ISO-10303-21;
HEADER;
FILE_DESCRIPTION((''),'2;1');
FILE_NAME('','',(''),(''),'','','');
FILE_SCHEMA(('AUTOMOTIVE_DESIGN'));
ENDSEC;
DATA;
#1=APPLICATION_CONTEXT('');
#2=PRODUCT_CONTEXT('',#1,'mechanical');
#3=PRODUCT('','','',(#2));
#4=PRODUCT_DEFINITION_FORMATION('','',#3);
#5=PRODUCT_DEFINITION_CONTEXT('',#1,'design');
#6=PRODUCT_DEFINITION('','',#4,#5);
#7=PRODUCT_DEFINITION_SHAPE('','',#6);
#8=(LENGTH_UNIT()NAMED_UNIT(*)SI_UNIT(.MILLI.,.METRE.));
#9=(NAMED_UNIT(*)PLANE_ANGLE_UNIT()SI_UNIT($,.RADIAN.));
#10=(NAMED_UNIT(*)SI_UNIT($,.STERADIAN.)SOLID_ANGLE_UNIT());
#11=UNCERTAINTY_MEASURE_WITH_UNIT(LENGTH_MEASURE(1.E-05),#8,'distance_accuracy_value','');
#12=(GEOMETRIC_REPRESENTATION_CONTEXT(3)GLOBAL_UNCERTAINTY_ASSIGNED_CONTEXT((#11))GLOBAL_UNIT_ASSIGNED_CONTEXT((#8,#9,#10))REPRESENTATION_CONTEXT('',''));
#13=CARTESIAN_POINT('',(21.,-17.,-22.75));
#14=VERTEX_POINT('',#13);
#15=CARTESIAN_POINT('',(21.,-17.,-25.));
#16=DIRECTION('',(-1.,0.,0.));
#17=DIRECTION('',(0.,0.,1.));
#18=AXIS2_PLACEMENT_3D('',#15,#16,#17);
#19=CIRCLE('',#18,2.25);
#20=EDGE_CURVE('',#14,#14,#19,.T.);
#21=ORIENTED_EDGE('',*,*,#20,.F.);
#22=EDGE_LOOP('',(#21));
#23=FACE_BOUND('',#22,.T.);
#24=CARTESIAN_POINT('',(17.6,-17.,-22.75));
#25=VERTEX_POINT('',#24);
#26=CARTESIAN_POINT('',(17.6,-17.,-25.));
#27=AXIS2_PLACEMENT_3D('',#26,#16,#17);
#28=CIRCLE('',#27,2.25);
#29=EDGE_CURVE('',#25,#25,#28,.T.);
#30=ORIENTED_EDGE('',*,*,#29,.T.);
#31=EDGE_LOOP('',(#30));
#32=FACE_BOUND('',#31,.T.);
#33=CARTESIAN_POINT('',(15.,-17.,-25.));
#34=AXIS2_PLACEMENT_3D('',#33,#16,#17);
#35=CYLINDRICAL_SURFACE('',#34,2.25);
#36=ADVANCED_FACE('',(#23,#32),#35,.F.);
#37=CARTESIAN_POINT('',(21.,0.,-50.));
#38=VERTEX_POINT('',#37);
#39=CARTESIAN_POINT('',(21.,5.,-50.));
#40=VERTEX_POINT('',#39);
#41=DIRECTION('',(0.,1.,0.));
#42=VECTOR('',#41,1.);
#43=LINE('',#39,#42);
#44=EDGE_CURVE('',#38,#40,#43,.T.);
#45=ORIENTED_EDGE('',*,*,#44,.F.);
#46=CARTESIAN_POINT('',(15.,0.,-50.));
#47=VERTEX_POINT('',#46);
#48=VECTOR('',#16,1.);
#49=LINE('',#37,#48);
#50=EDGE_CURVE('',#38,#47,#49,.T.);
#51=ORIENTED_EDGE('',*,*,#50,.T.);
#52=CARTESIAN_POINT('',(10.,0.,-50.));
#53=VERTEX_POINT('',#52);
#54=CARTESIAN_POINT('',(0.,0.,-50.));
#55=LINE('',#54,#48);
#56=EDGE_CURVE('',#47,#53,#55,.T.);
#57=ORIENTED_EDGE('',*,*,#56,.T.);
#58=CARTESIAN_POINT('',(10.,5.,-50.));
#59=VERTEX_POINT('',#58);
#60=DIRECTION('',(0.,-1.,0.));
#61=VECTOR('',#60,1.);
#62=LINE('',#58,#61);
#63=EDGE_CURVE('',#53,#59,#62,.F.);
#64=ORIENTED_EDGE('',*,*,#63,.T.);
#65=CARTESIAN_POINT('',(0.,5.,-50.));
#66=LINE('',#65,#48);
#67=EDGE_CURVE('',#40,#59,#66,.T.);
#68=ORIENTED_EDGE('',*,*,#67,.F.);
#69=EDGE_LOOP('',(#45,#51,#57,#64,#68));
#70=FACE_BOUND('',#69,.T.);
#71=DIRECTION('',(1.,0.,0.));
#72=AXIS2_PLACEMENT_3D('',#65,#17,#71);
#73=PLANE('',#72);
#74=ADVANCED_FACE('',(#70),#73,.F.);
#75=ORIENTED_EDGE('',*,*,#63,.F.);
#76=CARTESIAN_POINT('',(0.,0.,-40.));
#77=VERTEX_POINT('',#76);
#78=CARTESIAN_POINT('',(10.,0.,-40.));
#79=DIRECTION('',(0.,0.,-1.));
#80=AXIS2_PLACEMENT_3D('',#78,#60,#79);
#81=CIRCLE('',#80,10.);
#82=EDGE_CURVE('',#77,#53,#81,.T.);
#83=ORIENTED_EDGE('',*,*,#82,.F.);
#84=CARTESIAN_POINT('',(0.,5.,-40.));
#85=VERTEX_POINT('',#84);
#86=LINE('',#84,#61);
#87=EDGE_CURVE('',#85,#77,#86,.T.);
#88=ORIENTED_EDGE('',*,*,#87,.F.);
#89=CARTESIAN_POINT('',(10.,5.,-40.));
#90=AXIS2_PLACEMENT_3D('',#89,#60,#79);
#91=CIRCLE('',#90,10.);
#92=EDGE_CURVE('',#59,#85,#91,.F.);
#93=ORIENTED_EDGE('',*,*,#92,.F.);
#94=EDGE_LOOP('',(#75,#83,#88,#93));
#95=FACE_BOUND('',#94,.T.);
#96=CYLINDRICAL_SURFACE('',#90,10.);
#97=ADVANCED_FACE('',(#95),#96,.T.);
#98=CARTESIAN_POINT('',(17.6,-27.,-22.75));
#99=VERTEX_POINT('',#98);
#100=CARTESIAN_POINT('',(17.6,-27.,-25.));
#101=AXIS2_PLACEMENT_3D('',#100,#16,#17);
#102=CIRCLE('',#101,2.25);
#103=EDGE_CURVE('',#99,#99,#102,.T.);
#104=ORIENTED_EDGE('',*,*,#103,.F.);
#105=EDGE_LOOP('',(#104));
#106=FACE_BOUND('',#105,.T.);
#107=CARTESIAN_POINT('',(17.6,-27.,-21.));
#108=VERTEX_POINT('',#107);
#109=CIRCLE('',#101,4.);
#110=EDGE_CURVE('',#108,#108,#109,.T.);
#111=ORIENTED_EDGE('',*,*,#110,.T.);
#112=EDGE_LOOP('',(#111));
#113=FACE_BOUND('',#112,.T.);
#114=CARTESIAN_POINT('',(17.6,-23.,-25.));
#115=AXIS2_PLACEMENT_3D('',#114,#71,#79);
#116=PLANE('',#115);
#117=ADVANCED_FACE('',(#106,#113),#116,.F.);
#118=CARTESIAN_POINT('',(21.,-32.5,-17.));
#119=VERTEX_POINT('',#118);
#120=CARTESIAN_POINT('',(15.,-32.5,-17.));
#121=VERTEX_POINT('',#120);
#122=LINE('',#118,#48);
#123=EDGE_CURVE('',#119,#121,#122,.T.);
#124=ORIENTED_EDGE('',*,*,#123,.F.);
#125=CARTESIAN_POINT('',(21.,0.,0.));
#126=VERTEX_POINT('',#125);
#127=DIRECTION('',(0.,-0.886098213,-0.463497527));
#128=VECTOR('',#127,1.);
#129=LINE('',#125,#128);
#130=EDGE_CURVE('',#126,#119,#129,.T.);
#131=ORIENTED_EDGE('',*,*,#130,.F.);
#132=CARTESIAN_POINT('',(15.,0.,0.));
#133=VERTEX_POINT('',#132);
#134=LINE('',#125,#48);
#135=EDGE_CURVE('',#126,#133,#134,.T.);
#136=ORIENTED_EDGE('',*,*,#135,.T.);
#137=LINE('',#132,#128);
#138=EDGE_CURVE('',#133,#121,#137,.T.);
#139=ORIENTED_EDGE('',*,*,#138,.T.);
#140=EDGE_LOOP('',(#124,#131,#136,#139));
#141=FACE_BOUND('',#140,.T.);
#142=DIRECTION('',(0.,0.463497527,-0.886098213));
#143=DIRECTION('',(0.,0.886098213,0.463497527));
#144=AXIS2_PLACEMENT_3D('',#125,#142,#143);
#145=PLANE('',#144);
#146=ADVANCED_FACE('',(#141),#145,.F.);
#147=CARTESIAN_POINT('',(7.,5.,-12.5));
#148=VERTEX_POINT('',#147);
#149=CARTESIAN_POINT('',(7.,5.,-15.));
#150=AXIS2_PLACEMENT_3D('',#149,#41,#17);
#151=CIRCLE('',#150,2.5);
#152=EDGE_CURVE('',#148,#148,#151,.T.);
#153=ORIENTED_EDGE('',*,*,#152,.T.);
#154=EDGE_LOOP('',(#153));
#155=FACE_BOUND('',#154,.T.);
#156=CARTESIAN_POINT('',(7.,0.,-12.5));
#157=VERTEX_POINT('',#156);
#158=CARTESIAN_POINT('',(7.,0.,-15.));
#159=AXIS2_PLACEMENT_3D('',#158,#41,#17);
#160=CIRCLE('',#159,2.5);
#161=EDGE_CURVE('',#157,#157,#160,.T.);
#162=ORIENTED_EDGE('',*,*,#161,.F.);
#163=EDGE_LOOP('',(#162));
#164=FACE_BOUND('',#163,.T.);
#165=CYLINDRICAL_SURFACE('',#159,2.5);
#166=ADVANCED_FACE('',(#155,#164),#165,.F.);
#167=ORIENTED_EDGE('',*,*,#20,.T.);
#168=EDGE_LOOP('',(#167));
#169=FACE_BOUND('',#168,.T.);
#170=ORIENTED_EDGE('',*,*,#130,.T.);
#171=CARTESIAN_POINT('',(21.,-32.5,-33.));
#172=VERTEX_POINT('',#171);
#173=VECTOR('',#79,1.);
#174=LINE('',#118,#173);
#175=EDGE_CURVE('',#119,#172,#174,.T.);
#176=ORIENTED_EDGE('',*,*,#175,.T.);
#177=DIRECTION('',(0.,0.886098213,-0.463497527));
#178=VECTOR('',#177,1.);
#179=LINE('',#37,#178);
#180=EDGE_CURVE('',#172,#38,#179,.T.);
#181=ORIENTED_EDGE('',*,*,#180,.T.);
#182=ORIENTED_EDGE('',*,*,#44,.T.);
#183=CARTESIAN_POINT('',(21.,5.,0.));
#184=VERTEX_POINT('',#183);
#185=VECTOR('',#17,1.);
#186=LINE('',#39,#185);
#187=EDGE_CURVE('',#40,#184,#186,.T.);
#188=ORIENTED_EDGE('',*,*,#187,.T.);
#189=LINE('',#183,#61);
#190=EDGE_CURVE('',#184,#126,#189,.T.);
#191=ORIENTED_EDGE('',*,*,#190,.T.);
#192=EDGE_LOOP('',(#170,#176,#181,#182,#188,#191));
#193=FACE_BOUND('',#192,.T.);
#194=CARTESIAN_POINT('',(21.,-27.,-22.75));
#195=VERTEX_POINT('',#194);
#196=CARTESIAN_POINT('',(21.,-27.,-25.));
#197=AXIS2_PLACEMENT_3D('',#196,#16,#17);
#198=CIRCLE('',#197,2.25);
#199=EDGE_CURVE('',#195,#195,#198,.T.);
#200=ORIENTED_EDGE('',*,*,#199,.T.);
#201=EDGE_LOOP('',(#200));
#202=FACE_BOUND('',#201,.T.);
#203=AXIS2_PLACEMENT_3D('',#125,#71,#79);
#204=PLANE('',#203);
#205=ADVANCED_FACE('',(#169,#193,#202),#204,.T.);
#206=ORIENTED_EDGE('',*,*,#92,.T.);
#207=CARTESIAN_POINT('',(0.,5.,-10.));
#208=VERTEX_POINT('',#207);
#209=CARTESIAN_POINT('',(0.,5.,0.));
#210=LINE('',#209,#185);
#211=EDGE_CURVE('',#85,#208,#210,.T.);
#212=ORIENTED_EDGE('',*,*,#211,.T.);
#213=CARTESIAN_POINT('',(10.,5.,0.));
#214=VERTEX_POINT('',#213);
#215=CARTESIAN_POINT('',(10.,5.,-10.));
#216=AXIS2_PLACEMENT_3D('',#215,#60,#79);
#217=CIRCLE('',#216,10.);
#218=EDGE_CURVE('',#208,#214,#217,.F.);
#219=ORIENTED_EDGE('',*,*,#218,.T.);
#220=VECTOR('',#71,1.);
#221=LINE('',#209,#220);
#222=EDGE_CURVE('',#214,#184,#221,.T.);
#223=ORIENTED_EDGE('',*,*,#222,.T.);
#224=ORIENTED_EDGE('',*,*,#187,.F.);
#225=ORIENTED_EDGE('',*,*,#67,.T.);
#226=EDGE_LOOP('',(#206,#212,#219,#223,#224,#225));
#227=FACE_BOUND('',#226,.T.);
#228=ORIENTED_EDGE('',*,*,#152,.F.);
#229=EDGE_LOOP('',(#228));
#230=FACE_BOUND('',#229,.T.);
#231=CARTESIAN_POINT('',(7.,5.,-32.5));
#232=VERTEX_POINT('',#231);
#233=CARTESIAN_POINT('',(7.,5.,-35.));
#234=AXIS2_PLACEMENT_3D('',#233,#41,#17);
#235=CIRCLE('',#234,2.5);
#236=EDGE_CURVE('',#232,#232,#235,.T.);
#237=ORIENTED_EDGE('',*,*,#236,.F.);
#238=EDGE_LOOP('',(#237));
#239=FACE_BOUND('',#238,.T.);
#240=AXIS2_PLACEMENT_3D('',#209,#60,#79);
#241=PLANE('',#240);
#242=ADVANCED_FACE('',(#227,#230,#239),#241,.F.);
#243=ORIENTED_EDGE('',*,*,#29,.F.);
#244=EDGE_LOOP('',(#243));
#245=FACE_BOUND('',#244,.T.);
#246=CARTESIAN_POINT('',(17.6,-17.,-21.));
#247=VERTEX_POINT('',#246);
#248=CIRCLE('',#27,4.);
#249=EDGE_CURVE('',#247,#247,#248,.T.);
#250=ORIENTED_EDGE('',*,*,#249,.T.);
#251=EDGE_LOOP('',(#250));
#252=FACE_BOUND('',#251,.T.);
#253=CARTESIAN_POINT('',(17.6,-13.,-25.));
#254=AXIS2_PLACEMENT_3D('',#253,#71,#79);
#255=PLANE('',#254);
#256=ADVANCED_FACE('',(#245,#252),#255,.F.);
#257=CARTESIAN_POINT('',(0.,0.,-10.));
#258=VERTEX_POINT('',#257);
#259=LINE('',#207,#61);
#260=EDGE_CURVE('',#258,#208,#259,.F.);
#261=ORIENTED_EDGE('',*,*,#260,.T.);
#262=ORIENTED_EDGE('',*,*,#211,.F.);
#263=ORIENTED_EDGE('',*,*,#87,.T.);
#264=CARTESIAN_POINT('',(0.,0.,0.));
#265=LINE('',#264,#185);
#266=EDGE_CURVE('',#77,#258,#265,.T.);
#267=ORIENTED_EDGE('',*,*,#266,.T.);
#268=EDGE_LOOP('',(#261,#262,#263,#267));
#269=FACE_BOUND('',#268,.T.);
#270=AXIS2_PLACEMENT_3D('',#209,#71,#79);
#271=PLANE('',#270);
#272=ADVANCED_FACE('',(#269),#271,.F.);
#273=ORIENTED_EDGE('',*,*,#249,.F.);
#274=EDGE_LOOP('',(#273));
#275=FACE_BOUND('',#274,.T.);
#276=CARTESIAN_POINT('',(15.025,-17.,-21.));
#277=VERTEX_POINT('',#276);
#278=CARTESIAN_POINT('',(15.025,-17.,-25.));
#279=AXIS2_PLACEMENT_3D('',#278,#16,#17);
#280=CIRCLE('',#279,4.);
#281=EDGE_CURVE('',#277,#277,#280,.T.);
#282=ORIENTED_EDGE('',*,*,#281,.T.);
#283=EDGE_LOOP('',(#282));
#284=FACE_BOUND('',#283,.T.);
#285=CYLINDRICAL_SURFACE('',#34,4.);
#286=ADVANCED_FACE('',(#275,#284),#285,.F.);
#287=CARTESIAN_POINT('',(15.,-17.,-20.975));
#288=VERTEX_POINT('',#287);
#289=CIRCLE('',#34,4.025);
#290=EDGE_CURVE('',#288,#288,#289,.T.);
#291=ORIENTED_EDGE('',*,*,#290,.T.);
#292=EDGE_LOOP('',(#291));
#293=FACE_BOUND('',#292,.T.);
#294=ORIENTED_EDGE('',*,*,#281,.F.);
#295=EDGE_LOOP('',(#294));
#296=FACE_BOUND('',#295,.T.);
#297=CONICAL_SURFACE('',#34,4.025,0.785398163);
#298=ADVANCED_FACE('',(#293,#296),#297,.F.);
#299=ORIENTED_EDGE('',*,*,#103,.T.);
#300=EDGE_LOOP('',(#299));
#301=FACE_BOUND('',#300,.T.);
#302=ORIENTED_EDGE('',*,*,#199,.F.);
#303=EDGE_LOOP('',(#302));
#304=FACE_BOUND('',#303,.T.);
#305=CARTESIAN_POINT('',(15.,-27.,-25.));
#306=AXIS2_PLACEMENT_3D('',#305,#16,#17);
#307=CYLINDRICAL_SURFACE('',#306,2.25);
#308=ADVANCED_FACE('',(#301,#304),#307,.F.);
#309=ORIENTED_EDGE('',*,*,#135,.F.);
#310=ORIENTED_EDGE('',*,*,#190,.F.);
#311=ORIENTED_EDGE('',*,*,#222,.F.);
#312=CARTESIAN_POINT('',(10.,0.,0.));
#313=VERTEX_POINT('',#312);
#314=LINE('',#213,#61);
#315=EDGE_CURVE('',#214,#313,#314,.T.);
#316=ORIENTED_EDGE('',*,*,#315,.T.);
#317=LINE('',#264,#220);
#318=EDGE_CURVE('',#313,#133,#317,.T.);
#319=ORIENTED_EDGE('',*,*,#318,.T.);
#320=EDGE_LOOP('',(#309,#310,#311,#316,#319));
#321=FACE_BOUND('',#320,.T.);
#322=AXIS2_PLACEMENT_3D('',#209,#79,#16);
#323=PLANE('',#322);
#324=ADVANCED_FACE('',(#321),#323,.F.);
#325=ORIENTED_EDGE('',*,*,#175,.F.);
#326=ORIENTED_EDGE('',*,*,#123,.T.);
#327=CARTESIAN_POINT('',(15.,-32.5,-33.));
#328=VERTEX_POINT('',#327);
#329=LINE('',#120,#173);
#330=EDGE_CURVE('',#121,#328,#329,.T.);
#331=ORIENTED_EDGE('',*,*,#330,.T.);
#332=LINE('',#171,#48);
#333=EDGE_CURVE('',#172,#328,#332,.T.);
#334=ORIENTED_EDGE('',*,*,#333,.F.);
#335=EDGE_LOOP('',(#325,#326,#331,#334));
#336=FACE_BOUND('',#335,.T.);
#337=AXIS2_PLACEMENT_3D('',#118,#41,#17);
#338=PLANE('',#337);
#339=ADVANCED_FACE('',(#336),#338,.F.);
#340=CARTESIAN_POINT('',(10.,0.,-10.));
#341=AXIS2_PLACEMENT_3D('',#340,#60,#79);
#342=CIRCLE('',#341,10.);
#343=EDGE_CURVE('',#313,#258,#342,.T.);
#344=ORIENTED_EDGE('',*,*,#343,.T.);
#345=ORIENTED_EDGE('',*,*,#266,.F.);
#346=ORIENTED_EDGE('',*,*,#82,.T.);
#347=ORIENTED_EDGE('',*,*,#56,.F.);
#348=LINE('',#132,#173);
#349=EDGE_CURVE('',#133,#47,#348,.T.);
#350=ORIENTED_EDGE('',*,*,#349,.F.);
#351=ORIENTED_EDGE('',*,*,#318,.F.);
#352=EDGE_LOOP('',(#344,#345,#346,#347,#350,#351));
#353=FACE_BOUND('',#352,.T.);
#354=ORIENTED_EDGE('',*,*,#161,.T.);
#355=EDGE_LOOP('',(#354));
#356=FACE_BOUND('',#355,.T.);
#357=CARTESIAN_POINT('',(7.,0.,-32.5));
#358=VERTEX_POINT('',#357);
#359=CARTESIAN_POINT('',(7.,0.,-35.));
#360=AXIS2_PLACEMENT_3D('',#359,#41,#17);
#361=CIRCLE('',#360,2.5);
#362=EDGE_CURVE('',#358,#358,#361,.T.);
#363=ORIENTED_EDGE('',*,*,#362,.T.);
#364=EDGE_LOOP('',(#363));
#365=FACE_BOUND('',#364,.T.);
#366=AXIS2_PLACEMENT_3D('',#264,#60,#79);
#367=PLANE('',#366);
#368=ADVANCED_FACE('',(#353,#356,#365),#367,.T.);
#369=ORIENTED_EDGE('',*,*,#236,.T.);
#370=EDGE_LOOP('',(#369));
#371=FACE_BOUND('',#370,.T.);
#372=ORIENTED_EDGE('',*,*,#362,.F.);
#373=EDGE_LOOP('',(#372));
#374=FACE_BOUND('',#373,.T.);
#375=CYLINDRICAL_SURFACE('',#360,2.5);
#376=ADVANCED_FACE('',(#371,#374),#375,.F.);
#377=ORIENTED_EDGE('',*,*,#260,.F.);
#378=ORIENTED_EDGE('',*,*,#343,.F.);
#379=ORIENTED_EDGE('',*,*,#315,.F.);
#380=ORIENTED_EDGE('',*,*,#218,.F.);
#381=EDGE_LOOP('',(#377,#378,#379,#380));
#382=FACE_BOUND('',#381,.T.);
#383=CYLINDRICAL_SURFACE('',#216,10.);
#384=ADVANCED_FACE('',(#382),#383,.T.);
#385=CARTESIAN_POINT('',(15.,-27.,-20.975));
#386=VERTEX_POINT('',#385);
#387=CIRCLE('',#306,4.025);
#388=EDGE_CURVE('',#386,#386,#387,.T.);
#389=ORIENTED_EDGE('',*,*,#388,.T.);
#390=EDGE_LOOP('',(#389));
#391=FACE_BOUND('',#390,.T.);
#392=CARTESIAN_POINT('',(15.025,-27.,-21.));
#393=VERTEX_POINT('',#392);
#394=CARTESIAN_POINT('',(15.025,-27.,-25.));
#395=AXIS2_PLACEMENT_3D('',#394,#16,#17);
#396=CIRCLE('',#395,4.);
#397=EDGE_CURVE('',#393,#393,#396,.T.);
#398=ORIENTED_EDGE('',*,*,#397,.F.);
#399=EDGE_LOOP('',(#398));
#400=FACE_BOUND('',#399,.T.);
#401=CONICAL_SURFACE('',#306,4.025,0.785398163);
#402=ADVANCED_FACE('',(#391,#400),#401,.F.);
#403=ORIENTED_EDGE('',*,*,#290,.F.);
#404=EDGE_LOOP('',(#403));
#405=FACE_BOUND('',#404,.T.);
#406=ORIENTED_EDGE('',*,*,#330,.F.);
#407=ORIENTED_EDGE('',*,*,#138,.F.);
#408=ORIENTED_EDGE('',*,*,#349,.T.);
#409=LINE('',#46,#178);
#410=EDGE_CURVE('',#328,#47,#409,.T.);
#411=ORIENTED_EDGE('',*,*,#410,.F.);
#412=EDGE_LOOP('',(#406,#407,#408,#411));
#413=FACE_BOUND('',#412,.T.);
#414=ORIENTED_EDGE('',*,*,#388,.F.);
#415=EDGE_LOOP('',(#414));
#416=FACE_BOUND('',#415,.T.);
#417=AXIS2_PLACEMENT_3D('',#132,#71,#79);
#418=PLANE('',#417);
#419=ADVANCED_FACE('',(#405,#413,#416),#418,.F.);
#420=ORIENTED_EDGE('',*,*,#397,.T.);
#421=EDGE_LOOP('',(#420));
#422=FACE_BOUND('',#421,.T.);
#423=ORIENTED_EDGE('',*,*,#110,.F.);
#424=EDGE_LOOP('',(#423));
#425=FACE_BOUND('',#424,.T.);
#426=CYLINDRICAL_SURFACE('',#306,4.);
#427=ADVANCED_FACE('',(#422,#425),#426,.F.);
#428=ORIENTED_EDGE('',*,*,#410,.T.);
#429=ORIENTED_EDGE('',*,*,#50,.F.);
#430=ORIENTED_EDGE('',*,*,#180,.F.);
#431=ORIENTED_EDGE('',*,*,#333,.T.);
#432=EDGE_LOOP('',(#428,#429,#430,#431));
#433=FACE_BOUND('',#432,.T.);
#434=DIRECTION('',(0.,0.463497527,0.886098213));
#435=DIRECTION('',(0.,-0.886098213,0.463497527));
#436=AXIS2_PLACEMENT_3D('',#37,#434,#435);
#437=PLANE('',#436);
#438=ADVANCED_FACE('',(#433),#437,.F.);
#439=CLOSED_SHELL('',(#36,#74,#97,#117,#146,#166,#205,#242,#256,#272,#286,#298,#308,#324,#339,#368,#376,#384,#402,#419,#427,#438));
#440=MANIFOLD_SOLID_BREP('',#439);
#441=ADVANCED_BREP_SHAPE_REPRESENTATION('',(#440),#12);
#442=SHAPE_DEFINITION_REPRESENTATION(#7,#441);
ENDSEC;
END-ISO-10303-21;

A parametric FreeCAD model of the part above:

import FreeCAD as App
import Part
import Sketcher

V = App.Vector
Q = App.Units.Quantity


def edges_at(feature, points):
    """Names of the edges that pass closest to the given points."""
    edges = feature.Shape.Edges
    near = lambda p: min(range(len(edges)), key=lambda i: edges[i].distToShape(Part.Vertex(*p))[0])
    return sorted({f"Edge{near(p) + 1}" for p in points})

doc = App.newDocument("Part")
body = doc.addObject("PartDesign::Body", "Body")

# Sketch on XZ plane
sketch1 = body.newObject("Sketcher::SketchObject", "Sketch")
sketch1.AttachmentSupport = (doc.getObject("XZ_Plane"), [""])
sketch1.MapMode = "FlatFace"
sketch1.addGeometry([
    Part.LineSegment(V(0, -50, 0), V(0, 0, 0)),
    Part.LineSegment(V(0, 0, 0), V(15, 0, 0)),
    Part.LineSegment(V(15, 0, 0), V(15, -50, 0)),
    Part.LineSegment(V(15, -50, 0), V(0, -50, 0)),
], False)
sketch1.addConstraint([
    Sketcher.Constraint("Coincident", 0, 2, 1, 1),
    Sketcher.Constraint("Coincident", 1, 2, 2, 1),
    Sketcher.Constraint("Coincident", 2, 2, 3, 1),
    Sketcher.Constraint("Coincident", 3, 2, 0, 1),
    Sketcher.Constraint("Vertical", 0),
    Sketcher.Constraint("Horizontal", 1),
    Sketcher.Constraint("Vertical", 2),
    Sketcher.Constraint("Horizontal", 3),
    Sketcher.Constraint("Coincident", 0, 2, -1, 1),
    Sketcher.Constraint("DistanceX", 1, 1, 1, 2, 15.0),
    Sketcher.Constraint("DistanceY", 0, 1, 0, 2, 50.0),
])
pad1 = body.newObject("PartDesign::Pad", "Pad")
pad1.Profile = sketch1
pad1.Length = 5
pad1.Reversed = True

# Sketch on XZ plane
sketch2 = body.newObject("Sketcher::SketchObject", "Sketch001")
sketch2.AttachmentSupport = (doc.getObject("XZ_Plane"), [""])
sketch2.MapMode = "FlatFace"
sketch2.AttachmentOffset = App.Placement(V(0, 0, -5), App.Rotation())
sketch2.addGeometry([
    Part.Circle(V(7, -35, 0), V(0, 0, 1), 2.5),
    Part.Circle(V(7, -15, 0), V(0, 0, 1), 2.5),
], False)
sketch2.addConstraint([
    Sketcher.Constraint("Equal", 0, 1),
    Sketcher.Constraint("Vertical", 0, 3, 1, 3),
    Sketcher.Constraint("Diameter", 0, 5.0),
    Sketcher.Constraint("DistanceX", -1, 1, 0, 3, 7.0),
    Sketcher.Constraint("DistanceY", 0, 3, -1, 1, 35.0),
    Sketcher.Constraint("DistanceY", 1, 3, -1, 1, 15.0),
])
pocket1 = body.newObject("PartDesign::Pocket", "Pocket")
pocket1.Profile = sketch2
pocket1.Type = "ThroughAll"
pocket1.Reversed = True
doc.recompute()

fillet = body.newObject("PartDesign::Fillet", "Fillet")
fillet.Base = (pocket1, edges_at(pocket1, [(0, 2.5, -50), (0, 2.5, 0)]))
fillet.Radius = 10

# Sketch on YZ plane
sketch3 = body.newObject("Sketcher::SketchObject", "Sketch002")
sketch3.AttachmentSupport = (doc.getObject("YZ_Plane"), [""])
sketch3.MapMode = "FlatFace"
sketch3.AttachmentOffset = App.Placement(V(0, 0, 15), App.Rotation())
sketch3.addGeometry([
    Part.LineSegment(V(5, -50, 0), V(5, 0, 0)),  # 0
    Part.LineSegment(V(5, 0, 0), V(0, 0, 0)),  # 1
    Part.LineSegment(V(0, 0, 0), V(-32.5, -17, 0)),  # 2
    Part.LineSegment(V(-32.5, -17, 0), V(-32.5, -33, 0)),  # 3
    Part.LineSegment(V(-32.5, -33, 0), V(0, -50, 0)),  # 4
    Part.LineSegment(V(0, -50, 0), V(5, -50, 0)),  # 5
], False)
sketch3.addConstraint([
    Sketcher.Constraint("Coincident", 0, 2, 1, 1),
    Sketcher.Constraint("Coincident", 1, 2, 2, 1),
    Sketcher.Constraint("Coincident", 2, 2, 3, 1),
    Sketcher.Constraint("Coincident", 3, 2, 4, 1),
    Sketcher.Constraint("Coincident", 4, 2, 5, 1),
    Sketcher.Constraint("Coincident", 5, 2, 0, 1),
    Sketcher.Constraint("Vertical", 0),
    Sketcher.Constraint("Horizontal", 1),
    Sketcher.Constraint("Vertical", 3),
    Sketcher.Constraint("Horizontal", 5),
    Sketcher.Constraint("Coincident", 1, 2, -1, 1),
    Sketcher.Constraint("PointOnObject", 4, 2, -2),
    Sketcher.Constraint("Equal", 2, 4),
    Sketcher.Constraint("DistanceX", 1, 2, 1, 1, 5.0),
    Sketcher.Constraint("DistanceY", 0, 1, 0, 2, 50.0),
    Sketcher.Constraint("DistanceY", 3, 2, 3, 1, 16.0),
    Sketcher.Constraint("DistanceX", 2, 2, -1, 1, 32.5),
])
pad2 = body.newObject("PartDesign::Pad", "Pad001")
pad2.Profile = sketch3
pad2.Length = 6

# Sketch on XZ plane
sketch4 = body.newObject("Sketcher::SketchObject", "Sketch003")
sketch4.AttachmentSupport = (doc.getObject("XZ_Plane"), [""])
sketch4.MapMode = "FlatFace"
sketch4.AttachmentOffset = App.Placement(V(0, 0, 27), App.Rotation())
sketch4.addGeometry([
    Part.LineSegment(V(21, -25, 0), V(15, -25, 0)),  # 0
    Part.LineSegment(V(15, -25, 0), V(15, -20.975, 0)),  # 1
    Part.LineSegment(V(15, -20.975, 0), V(15.025, -21, 0)),  # 2
    Part.LineSegment(V(15.025, -21, 0), V(17.6, -21, 0)),  # 3
    Part.LineSegment(V(17.6, -21, 0), V(17.6, -22.75, 0)),  # 4
    Part.LineSegment(V(17.6, -22.75, 0), V(21, -22.75, 0)),  # 5
    Part.LineSegment(V(21, -22.75, 0), V(21, -25, 0)),  # 6
], False)
sketch4.addGeometry(Part.LineSegment(V(15, -25, 0), V(21, -25, 0)), True)  # axis
sketch4.addConstraint([
    Sketcher.Constraint("Coincident", 0, 2, 1, 1),
    Sketcher.Constraint("Coincident", 1, 2, 2, 1),
    Sketcher.Constraint("Coincident", 2, 2, 3, 1),
    Sketcher.Constraint("Coincident", 3, 2, 4, 1),
    Sketcher.Constraint("Coincident", 4, 2, 5, 1),
    Sketcher.Constraint("Coincident", 5, 2, 6, 1),
    Sketcher.Constraint("Coincident", 6, 2, 0, 1),
    Sketcher.Constraint("Horizontal", 0),
    Sketcher.Constraint("Vertical", 1),
    Sketcher.Constraint("Horizontal", 3),
    Sketcher.Constraint("Vertical", 4),
    Sketcher.Constraint("Horizontal", 5),
    Sketcher.Constraint("Vertical", 6),
    Sketcher.Constraint("Horizontal", 7),
    Sketcher.Constraint("Coincident", 7, 1, 0, 2),
    Sketcher.Constraint("Vertical", 5, 2, 7, 2),
    Sketcher.Constraint("DistanceX", 0, 2, 0, 1, 6.0),
    Sketcher.Constraint("Angle", 2, Q("-45 deg")),
    Sketcher.Constraint("DistanceX", 5, 1, 5, 2, 3.4),
    Sketcher.Constraint("DistanceX", -1, 1, 0, 2, 15.0),
    Sketcher.Constraint("DistanceY", 0, 2, -1, 1, 25.0),
    Sketcher.Constraint("DistanceY", 2, 2, -1, 1, 21.0),
    Sketcher.Constraint("DistanceY", 4, 2, 4, 1, 1.75),
    Sketcher.Constraint("DistanceX", 3, 1, 3, 2, 2.575),
])
groove = body.newObject("PartDesign::Groove", "Groove")
groove.Profile = sketch4
groove.ReferenceAxis = (sketch4, ["Axis0"])
groove.Angle = 360
doc.recompute()

linearpattern = body.newObject("PartDesign::LinearPattern", "LinearPattern")
linearpattern.Originals = [groove]
linearpattern.Direction = (doc.getObject("Y_Axis"), [""])
linearpattern.Mode = "offset"
linearpattern.Offset = 10
linearpattern.Occurrences = 2
body.Tip = linearpattern

doc.recompute()
